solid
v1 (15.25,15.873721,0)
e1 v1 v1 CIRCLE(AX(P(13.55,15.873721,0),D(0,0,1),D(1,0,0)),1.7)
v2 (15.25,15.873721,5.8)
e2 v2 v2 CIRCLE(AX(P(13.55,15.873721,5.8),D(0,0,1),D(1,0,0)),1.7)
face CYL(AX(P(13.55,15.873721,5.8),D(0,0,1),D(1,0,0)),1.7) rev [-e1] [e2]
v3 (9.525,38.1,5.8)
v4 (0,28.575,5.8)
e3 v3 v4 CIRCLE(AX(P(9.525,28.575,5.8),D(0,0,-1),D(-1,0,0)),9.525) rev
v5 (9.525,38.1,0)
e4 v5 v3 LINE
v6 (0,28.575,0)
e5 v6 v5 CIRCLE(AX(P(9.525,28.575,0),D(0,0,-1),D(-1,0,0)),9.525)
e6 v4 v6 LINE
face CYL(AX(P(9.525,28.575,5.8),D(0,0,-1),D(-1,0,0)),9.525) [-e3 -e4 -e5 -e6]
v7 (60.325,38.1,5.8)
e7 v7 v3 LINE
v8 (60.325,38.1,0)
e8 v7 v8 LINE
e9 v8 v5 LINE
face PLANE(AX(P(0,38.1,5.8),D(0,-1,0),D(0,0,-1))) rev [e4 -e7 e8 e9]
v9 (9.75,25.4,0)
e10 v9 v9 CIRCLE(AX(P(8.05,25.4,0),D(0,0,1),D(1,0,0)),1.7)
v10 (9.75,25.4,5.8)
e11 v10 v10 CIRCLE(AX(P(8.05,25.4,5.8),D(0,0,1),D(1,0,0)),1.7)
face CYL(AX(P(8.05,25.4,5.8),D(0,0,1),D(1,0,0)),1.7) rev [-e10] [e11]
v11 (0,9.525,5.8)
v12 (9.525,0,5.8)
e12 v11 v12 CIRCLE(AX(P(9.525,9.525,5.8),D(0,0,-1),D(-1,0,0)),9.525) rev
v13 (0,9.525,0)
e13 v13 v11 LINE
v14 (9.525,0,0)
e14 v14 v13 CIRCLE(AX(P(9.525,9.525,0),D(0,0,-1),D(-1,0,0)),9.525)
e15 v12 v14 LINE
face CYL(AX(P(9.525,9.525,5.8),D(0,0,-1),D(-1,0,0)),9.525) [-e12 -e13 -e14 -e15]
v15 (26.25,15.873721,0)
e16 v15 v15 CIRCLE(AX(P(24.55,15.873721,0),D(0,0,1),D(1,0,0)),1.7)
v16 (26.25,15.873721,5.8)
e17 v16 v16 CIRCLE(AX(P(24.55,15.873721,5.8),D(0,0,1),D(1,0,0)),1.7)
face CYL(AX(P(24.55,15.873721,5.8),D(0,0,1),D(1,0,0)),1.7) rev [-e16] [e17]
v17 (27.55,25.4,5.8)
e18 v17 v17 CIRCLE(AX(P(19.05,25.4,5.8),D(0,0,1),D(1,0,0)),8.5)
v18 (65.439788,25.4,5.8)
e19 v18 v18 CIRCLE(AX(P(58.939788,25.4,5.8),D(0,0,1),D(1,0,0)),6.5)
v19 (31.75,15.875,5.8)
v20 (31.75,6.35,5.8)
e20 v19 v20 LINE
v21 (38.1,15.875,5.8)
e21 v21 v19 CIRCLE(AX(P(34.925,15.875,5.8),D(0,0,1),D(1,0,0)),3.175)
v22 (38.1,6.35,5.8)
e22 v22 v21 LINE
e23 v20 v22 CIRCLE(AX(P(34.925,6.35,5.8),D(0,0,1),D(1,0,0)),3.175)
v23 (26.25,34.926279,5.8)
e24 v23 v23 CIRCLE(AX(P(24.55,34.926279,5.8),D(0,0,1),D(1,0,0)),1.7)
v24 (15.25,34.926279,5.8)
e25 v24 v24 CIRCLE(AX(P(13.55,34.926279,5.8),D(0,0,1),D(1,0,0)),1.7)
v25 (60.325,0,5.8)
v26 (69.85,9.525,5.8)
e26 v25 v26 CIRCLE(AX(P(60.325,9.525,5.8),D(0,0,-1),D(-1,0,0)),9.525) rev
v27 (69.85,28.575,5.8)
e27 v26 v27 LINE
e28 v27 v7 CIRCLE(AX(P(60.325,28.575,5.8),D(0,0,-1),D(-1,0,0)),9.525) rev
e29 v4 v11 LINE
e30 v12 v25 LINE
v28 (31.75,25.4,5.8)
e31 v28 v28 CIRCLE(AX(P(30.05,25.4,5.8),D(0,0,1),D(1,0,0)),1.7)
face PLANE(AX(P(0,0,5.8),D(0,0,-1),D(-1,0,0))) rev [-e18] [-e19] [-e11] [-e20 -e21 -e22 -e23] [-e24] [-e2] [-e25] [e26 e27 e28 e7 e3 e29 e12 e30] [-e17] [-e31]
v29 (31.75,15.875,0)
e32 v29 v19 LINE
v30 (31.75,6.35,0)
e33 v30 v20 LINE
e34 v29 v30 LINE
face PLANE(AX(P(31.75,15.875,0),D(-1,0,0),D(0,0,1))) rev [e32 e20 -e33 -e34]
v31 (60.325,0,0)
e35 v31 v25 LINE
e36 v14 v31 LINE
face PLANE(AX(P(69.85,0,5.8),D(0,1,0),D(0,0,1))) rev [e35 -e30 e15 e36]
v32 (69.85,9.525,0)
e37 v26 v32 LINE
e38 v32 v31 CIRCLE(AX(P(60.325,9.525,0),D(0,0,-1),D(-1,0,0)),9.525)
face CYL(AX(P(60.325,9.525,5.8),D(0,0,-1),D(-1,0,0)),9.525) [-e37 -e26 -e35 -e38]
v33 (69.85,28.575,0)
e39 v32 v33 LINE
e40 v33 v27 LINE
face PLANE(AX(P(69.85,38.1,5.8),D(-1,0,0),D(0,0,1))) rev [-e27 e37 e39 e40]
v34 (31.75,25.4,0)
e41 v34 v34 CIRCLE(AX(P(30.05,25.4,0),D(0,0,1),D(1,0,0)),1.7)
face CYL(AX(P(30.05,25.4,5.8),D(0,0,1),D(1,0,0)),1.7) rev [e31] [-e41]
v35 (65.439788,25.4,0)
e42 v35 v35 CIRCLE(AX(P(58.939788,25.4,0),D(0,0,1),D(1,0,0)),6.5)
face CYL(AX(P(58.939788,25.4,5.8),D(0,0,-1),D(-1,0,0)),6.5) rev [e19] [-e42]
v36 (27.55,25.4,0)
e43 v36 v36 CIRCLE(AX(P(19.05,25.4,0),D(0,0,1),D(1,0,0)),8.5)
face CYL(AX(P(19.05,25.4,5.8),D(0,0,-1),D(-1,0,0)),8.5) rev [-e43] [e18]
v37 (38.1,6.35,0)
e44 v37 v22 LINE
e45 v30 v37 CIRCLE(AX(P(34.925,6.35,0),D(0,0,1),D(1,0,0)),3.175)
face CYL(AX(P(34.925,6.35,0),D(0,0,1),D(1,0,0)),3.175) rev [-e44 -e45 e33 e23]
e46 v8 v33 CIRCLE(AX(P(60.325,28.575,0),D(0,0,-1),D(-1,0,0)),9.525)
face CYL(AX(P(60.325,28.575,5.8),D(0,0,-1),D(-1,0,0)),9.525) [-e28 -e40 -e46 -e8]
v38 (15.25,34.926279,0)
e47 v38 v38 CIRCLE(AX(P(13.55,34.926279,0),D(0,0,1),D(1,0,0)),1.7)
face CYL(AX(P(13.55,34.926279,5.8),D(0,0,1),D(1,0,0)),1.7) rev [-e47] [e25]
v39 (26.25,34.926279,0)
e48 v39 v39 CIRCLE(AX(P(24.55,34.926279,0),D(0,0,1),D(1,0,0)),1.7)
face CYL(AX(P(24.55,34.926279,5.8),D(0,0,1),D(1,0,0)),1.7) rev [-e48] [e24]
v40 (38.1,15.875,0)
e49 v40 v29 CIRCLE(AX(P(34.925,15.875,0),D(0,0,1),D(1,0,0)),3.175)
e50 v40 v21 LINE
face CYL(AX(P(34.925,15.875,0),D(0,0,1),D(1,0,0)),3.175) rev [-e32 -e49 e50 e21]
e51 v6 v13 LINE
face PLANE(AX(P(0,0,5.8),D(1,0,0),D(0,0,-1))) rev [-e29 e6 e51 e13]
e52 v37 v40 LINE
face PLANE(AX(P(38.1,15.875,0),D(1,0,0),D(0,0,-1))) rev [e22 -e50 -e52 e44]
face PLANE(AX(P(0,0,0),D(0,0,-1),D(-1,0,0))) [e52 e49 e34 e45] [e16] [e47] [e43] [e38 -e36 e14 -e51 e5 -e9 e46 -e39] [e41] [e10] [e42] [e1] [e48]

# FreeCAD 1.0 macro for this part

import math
import FreeCAD as App
import Part
import Sketcher
Q = App.Units.Quantity


def edges_at(feature, points):
    """Names of the edges that pass closest to the given points."""
    edges = feature.Shape.Edges
    near = lambda p: min(range(len(edges)), key=lambda i: edges[i].distToShape(Part.Vertex(*p))[0])
    return sorted({f"Edge{near(p) + 1}" for p in points})


def add_polygon(sketch, points):
    """Adds a closed chain of lines whose ends are joined by coincident constraints."""
    first, n = sketch.GeometryCount, len(points)
    for a, b in zip(points, points[1:] + points[:1]):
        sketch.addGeometry(Part.LineSegment(App.Vector(*a, 0), App.Vector(*b, 0)), False)
    for i in range(n):
        sketch.addConstraint(Sketcher.Constraint("Coincident", first + i, 2, first + (i + 1) % n, 1))

doc = App.newDocument("Part")
body = doc.addObject("PartDesign::Body", "Body")

# Sketch on XY plane
sketch1 = doc.addObject("Sketcher::SketchObject", "Sketch")
body.addObject(sketch1)
sketch1.AttachmentSupport = (doc.XY_Plane, [""])
sketch1.MapMode = "FlatFace"
add_polygon(sketch1, [(0, 38), (0, 0), (70, 0), (70, 38)])  # lines 0-3
sketch1.addGeometry(Part.Circle(App.Vector(19, 25, 0), App.Vector(0, 0, 1), 8), False)  # 4
sketch1.addGeometry(Part.Circle(App.Vector(59, 25, 0), App.Vector(0, 0, 1), 6), False)  # 5
sketch1.addConstraint(Sketcher.Constraint("Vertical", 0))
sketch1.addConstraint(Sketcher.Constraint("Horizontal", 1))
sketch1.addConstraint(Sketcher.Constraint("Vertical", 2))
sketch1.addConstraint(Sketcher.Constraint("Horizontal", 3))
sketch1.addConstraint(Sketcher.Constraint("Coincident", 0, 2, -1, 1))
sketch1.addConstraint(Sketcher.Constraint("Horizontal", 4, 3, 5, 3))
sketch1.addConstraint(Sketcher.Constraint("Diameter", 4, Q("17 mm")))
sketch1.addConstraint(Sketcher.Constraint("Diameter", 5, Q("13 mm")))
sketch1.addConstraint(Sketcher.Constraint("DistanceY", 0, 2, 0, 1, Q("38.1 mm")))
sketch1.addConstraint(Sketcher.Constraint("DistanceX", 1, 1, 1, 2, Q("69.85 mm")))
sketch1.addConstraint(Sketcher.Constraint("DistanceY", -1, 1, 4, 3, Q("25.4 mm")))
sketch1.addConstraint(Sketcher.Constraint("DistanceX", 4, 3, 1, 2, Q("50.8 mm")))
sketch1.addConstraint(Sketcher.Constraint("DistanceX", -1, 1, 5, 3, Q("58.939788 mm")))
pad1 = doc.addObject("PartDesign::Pad", "Pad")
body.addObject(pad1)
pad1.Profile = sketch1
pad1.Length = 5.8

# Sketch on XY plane
sketch2 = doc.addObject("Sketcher::SketchObject", "Sketch001")
body.addObject(sketch2)
sketch2.AttachmentSupport = (doc.XY_Plane, [""])
sketch2.MapMode = "FlatFace"
sketch2.AttachmentOffset = App.Placement(App.Vector(0, 0, 5.8), App.Rotation())
sketch2.addGeometry(Part.Circle(App.Vector(30.1, 25.4, 0), App.Vector(0, 0, 1), 1.7), False)
sketch2.addGeometry(Part.Circle(App.Vector(24.6, 34.9, 0), App.Vector(0, 0, 1), 1.7), False)
sketch2.addGeometry(Part.Circle(App.Vector(13.6, 34.9, 0), App.Vector(0, 0, 1), 1.7), False)
sketch2.addGeometry(Part.Circle(App.Vector(8.1, 25.4, 0), App.Vector(0, 0, 1), 1.7), False)
sketch2.addGeometry(Part.Circle(App.Vector(13.6, 15.9, 0), App.Vector(0, 0, 1), 1.7), False)
sketch2.addGeometry(Part.Circle(App.Vector(24.6, 15.9, 0), App.Vector(0, 0, 1), 1.7), False)
sketch2.addConstraint(Sketcher.Constraint("Equal", 0, 1))
sketch2.addConstraint(Sketcher.Constraint("Equal", 1, 2))
sketch2.addConstraint(Sketcher.Constraint("Equal", 2, 3))
sketch2.addConstraint(Sketcher.Constraint("Equal", 3, 4))
sketch2.addConstraint(Sketcher.Constraint("Equal", 4, 5))
sketch2.addConstraint(Sketcher.Constraint("Horizontal", 1, 3, 2, 3))
sketch2.addConstraint(Sketcher.Constraint("Horizontal", 0, 3, 3, 3))
sketch2.addConstraint(Sketcher.Constraint("Horizontal", 4, 3, 5, 3))
sketch2.addConstraint(Sketcher.Constraint("Vertical", 2, 3, 4, 3))
sketch2.addConstraint(Sketcher.Constraint("Vertical", 1, 3, 5, 3))
sketch2.addConstraint(Sketcher.Constraint("Diameter", 0, Q("3.4 mm")))
sketch2.addConstraint(Sketcher.Constraint("DistanceX", 2, 3, 1, 3, Q("11 mm")))
sketch2.addConstraint(Sketcher.Constraint("DistanceX", 3, 3, 0, 3, Q("22 mm")))
sketch2.addConstraint(Sketcher.Constraint("DistanceY", -1, 1, 0, 3, Q("25.4 mm")))
sketch2.addConstraint(Sketcher.Constraint("DistanceX", 1, 3, 0, 3, Q("5.5 mm")))
sketch2.addConstraint(Sketcher.Constraint("DistanceX", -1, 1, 0, 3, Q("30.05 mm")))
sketch2.addConstraint(Sketcher.Constraint("DistanceY", -1, 1, 1, 3, Q("34.926279 mm")))
sketch2.addConstraint(Sketcher.Constraint("DistanceY", -1, 1, 4, 3, Q("15.873721 mm")))
doc.recompute()
hole = doc.addObject("PartDesign::Hole", "Hole")
body.addObject(hole)
hole.Profile = sketch2
hole.ThreadType = "None"
hole.Diameter = 3.4
hole.DepthType = "ThroughAll"

# Sketch on XY plane
sketch3 = doc.addObject("Sketcher::SketchObject", "Sketch002")
body.addObject(sketch3)
sketch3.AttachmentSupport = (doc.XY_Plane, [""])
sketch3.MapMode = "FlatFace"
sketch3.AttachmentOffset = App.Placement(App.Vector(0, 0, 5.8), App.Rotation())
sketch3.addGeometry(Part.LineSegment(App.Vector(31.8, 15.9, 0), App.Vector(31.8, 6.3, 0)), False)
sketch3.addGeometry(Part.ArcOfCircle(Part.Circle(App.Vector(34.9, 6.3, 0), App.Vector(0, 0, 1), 3.2), math.radians(180), math.radians(360)), False)
sketch3.addGeometry(Part.LineSegment(App.Vector(38.1, 6.3, 0), App.Vector(38.1, 15.9, 0)), False)
sketch3.addGeometry(Part.ArcOfCircle(Part.Circle(App.Vector(34.9, 15.9, 0), App.Vector(0, 0, 1), 3.2), math.radians(0), math.radians(180)), False)
sketch3.addConstraint(Sketcher.Constraint("Tangent", 0, 2, 1, 1))
sketch3.addConstraint(Sketcher.Constraint("Tangent", 1, 2, 2, 1))
sketch3.addConstraint(Sketcher.Constraint("Tangent", 2, 2, 3, 1))
sketch3.addConstraint(Sketcher.Constraint("Tangent", 3, 2, 0, 1))
sketch3.addConstraint(Sketcher.Constraint("Vertical", 0))
sketch3.addConstraint(Sketcher.Constraint("Vertical", 2))
sketch3.addConstraint(Sketcher.Constraint("Radius", 1, Q("3.175 mm")))
sketch3.addConstraint(Sketcher.Constraint("DistanceX", -1, 1, 1, 2, Q("38.1 mm")))
sketch3.addConstraint(Sketcher.Constraint("DistanceY", 0, 2, 0, 1, Q("9.525 mm")))
sketch3.addConstraint(Sketcher.Constraint("DistanceY", -1, 1, 1, 3, Q("6.35 mm")))
pocket1 = doc.addObject("PartDesign::Pocket", "Pocket")
body.addObject(pocket1)
pocket1.Profile = sketch3
pocket1.Type = "ThroughAll"
doc.recompute()

fillet = doc.addObject("PartDesign::Fillet", "Fillet")
body.addObject(fillet)
fillet.Base = (pocket1, edges_at(pocket1, [
    (0, 0, 2.9),
    (0, 38.1, 2.9),
    (69.85, 38.1, 2.9),
    (69.85, 0, 2.9),
]))
fillet.Radius = 9.525

doc.recompute()
